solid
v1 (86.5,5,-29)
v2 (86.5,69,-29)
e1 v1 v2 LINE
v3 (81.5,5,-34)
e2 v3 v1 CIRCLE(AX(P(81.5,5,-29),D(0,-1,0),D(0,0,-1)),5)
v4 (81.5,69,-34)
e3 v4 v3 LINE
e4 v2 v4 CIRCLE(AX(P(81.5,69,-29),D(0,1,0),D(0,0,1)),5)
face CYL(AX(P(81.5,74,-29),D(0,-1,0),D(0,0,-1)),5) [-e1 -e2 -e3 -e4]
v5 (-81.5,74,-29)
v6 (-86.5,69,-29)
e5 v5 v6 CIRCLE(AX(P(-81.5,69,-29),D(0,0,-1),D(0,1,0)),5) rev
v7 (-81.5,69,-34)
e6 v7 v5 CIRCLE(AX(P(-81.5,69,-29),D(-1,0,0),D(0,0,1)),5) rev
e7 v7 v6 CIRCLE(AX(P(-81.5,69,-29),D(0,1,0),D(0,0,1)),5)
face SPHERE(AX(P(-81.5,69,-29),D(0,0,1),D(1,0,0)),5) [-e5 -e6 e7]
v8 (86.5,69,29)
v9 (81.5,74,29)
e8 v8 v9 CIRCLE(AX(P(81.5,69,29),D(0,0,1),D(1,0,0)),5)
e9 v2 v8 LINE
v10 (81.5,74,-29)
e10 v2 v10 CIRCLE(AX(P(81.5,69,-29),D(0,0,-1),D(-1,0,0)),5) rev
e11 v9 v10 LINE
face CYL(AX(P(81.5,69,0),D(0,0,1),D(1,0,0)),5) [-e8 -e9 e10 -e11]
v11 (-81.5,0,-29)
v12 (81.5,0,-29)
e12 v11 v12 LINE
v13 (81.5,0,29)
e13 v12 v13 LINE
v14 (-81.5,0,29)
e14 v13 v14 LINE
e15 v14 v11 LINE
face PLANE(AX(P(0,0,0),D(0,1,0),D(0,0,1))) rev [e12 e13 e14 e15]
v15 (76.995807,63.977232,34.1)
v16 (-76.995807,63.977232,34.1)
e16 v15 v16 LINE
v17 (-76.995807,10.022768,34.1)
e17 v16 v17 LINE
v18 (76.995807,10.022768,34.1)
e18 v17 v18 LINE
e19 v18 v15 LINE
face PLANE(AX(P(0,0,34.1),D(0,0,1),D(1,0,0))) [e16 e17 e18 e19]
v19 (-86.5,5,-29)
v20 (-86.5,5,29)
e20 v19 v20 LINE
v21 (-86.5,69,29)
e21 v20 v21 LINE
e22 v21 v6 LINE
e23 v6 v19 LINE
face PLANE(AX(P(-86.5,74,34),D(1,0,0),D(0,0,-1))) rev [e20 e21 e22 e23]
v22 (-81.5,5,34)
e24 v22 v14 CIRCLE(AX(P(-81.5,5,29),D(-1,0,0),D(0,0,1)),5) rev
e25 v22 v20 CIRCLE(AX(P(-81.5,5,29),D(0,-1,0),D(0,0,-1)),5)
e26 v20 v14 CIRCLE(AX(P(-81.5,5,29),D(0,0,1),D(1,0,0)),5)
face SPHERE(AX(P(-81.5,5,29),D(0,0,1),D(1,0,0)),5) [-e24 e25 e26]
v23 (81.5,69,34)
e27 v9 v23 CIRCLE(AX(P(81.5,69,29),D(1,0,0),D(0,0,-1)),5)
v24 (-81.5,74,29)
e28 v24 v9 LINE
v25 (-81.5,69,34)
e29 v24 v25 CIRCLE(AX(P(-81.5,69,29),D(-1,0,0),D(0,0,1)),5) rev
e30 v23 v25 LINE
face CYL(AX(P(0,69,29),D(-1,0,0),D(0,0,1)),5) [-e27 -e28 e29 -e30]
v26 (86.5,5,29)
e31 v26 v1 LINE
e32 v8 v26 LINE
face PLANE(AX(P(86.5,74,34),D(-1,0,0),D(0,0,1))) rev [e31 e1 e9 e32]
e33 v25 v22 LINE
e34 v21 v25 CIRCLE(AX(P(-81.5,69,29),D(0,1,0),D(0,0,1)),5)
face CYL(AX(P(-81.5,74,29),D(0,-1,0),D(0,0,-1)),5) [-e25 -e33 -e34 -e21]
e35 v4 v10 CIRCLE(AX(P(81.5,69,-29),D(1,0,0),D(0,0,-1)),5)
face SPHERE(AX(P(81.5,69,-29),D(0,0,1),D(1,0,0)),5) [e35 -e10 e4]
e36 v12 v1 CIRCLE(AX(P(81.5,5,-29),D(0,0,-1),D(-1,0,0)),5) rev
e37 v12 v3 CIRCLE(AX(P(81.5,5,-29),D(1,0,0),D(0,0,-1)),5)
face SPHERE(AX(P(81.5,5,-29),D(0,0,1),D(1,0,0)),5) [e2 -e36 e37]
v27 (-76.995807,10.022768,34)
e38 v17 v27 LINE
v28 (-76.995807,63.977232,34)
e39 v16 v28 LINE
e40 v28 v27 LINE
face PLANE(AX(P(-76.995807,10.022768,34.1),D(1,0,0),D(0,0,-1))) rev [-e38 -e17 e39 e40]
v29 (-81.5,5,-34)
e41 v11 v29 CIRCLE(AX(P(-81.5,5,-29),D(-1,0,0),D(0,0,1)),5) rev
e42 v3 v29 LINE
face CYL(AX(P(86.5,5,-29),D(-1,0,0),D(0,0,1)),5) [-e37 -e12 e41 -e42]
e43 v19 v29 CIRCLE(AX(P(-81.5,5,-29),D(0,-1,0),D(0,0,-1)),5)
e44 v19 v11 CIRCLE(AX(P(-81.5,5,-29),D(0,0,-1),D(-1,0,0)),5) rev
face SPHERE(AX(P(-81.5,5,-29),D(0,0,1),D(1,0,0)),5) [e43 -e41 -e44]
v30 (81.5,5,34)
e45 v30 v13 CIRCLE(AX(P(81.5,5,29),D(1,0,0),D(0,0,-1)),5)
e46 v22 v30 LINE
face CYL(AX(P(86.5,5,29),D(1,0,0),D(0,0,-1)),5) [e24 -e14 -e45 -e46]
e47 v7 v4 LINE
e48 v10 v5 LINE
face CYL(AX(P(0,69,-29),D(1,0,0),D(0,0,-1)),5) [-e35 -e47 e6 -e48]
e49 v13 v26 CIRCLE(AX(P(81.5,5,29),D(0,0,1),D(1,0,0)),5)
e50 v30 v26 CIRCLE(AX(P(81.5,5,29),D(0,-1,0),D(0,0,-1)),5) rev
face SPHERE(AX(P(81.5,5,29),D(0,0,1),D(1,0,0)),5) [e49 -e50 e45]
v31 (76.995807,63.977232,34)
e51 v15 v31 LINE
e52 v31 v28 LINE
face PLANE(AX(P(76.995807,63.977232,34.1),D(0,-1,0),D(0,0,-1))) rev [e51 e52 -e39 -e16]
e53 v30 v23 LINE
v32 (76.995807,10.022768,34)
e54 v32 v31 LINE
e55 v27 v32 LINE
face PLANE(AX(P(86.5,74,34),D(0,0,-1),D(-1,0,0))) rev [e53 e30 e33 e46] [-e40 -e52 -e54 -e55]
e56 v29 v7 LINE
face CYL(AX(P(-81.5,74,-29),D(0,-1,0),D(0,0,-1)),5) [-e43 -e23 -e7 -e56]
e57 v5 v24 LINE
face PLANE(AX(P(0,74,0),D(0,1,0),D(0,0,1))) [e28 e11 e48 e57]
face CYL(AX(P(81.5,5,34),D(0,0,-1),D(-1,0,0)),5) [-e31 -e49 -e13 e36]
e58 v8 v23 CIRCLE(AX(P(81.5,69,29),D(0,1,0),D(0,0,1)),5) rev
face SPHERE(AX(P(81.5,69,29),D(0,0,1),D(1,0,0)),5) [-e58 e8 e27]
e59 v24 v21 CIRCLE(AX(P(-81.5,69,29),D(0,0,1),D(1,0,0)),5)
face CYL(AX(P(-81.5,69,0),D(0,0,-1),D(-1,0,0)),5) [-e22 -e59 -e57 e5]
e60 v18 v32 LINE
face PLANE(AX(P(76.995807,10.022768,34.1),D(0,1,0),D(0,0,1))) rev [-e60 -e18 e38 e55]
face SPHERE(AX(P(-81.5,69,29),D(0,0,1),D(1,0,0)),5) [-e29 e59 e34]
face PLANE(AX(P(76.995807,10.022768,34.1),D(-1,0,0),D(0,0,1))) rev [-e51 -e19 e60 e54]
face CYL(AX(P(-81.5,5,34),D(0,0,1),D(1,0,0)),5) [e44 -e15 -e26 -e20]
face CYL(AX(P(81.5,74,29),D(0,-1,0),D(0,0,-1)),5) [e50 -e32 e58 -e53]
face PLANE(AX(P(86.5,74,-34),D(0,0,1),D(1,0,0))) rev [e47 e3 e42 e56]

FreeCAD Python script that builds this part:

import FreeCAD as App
import Part
import Sketcher

doc = App.newDocument("Part")
params = doc.addObject("Spreadsheet::Sheet", "Params")
for row, (alias, value) in enumerate([
    ("sketch1_width", "173 mm"),
    ("sketch1_height", "68 mm"),
    ("pad1_length", "74 mm"),
    ("fillet_radius", "5 mm"),
    ("pad2_length", "0.1 mm"),
], start=1):
    params.set(f"A{row}", alias)
    params.set(f"B{row}", "=" + value)
    params.setAlias(f"B{row}", alias)

body = doc.addObject("PartDesign::Body", "Body")

sketch1 = body.newObject("Sketcher::SketchObject", "Sketch")
sketch1.AttachmentSupport = (doc.getObject("XZ_Plane"), [""])
sketch1.MapMode = "FlatFace"
sketch1.addGeometry([
    Part.LineSegment(App.Vector(-86, -34, 0), App.Vector(-86, 34, 0)),
    Part.LineSegment(App.Vector(-86, 34, 0), App.Vector(86, 34, 0)),
    Part.LineSegment(App.Vector(86, 34, 0), App.Vector(86, -34, 0)),
    Part.LineSegment(App.Vector(86, -34, 0), App.Vector(-86, -34, 0)),
], False)
sketch1.addConstraint([
    Sketcher.Constraint("Coincident", 0, 2, 1, 1),
    Sketcher.Constraint("Coincident", 1, 2, 2, 1),
    Sketcher.Constraint("Coincident", 2, 2, 3, 1),
    Sketcher.Constraint("Coincident", 3, 2, 0, 1),
    Sketcher.Constraint("Vertical", 0),
    Sketcher.Constraint("Horizontal", 1),
    Sketcher.Constraint("Vertical", 2),
    Sketcher.Constraint("Horizontal", 3),
    Sketcher.Constraint("Symmetric", 0, 2, 2, 2, -1, 1),
    Sketcher.Constraint("DistanceX", 1, 1, 1, 2, 173.0),
    Sketcher.Constraint("DistanceY", 0, 1, 0, 2, 68.0),
])
sketch1.setExpression("Constraints[9]", "Params.sketch1_width")
sketch1.setExpression("Constraints[10]", "Params.sketch1_height")
pad1 = body.newObject("PartDesign::Pad", "Pad")
pad1.Profile = sketch1
pad1.setExpression("Length", "Params.pad1_length")
pad1.Reversed = True
doc.recompute()

fillet = body.newObject("PartDesign::Fillet", "Fillet")
fillet.Base = (pad1, ["Edge1"])
fillet.UseAllEdges = True
fillet.setExpression("Radius", "Params.fillet_radius")

sketch2 = body.newObject("Sketcher::SketchObject", "Sketch001")
sketch2.AttachmentSupport = (doc.getObject("XY_Plane"), [""])
sketch2.MapMode = "FlatFace"
sketch2.AttachmentOffset = App.Placement(App.Vector(0, 0, 34), App.Rotation())
sketch2.addGeometry([
    Part.LineSegment(App.Vector(-77, 64, 0), App.Vector(-77, 10, 0)),
    Part.LineSegment(App.Vector(-77, 10, 0), App.Vector(77, 10, 0)),
    Part.LineSegment(App.Vector(77, 10, 0), App.Vector(77, 64, 0)),
    Part.LineSegment(App.Vector(77, 64, 0), App.Vector(-77, 64, 0)),
], False)
sketch2.addConstraint([
    Sketcher.Constraint("Coincident", 0, 2, 1, 1),
    Sketcher.Constraint("Coincident", 1, 2, 2, 1),
    Sketcher.Constraint("Coincident", 2, 2, 3, 1),
    Sketcher.Constraint("Coincident", 3, 2, 0, 1),
    Sketcher.Constraint("Vertical", 0),
    Sketcher.Constraint("Horizontal", 1),
    Sketcher.Constraint("Vertical", 2),
    Sketcher.Constraint("Horizontal", 3),
    Sketcher.Constraint("DistanceX", 1, 1, 1, 2, 153.991615),
    Sketcher.Constraint("DistanceY", 0, 2, 0, 1, 53.954464),
    Sketcher.Constraint("DistanceY", -1, 1, 0, 2, 10.022768),
    Sketcher.Constraint("DistanceX", 0, 2, -1, 1, 76.995807),
])
pad2 = body.newObject("PartDesign::Pad", "Pad001")
pad2.Profile = sketch2
pad2.setExpression("Length", "Params.pad2_length")

doc.recompute()
